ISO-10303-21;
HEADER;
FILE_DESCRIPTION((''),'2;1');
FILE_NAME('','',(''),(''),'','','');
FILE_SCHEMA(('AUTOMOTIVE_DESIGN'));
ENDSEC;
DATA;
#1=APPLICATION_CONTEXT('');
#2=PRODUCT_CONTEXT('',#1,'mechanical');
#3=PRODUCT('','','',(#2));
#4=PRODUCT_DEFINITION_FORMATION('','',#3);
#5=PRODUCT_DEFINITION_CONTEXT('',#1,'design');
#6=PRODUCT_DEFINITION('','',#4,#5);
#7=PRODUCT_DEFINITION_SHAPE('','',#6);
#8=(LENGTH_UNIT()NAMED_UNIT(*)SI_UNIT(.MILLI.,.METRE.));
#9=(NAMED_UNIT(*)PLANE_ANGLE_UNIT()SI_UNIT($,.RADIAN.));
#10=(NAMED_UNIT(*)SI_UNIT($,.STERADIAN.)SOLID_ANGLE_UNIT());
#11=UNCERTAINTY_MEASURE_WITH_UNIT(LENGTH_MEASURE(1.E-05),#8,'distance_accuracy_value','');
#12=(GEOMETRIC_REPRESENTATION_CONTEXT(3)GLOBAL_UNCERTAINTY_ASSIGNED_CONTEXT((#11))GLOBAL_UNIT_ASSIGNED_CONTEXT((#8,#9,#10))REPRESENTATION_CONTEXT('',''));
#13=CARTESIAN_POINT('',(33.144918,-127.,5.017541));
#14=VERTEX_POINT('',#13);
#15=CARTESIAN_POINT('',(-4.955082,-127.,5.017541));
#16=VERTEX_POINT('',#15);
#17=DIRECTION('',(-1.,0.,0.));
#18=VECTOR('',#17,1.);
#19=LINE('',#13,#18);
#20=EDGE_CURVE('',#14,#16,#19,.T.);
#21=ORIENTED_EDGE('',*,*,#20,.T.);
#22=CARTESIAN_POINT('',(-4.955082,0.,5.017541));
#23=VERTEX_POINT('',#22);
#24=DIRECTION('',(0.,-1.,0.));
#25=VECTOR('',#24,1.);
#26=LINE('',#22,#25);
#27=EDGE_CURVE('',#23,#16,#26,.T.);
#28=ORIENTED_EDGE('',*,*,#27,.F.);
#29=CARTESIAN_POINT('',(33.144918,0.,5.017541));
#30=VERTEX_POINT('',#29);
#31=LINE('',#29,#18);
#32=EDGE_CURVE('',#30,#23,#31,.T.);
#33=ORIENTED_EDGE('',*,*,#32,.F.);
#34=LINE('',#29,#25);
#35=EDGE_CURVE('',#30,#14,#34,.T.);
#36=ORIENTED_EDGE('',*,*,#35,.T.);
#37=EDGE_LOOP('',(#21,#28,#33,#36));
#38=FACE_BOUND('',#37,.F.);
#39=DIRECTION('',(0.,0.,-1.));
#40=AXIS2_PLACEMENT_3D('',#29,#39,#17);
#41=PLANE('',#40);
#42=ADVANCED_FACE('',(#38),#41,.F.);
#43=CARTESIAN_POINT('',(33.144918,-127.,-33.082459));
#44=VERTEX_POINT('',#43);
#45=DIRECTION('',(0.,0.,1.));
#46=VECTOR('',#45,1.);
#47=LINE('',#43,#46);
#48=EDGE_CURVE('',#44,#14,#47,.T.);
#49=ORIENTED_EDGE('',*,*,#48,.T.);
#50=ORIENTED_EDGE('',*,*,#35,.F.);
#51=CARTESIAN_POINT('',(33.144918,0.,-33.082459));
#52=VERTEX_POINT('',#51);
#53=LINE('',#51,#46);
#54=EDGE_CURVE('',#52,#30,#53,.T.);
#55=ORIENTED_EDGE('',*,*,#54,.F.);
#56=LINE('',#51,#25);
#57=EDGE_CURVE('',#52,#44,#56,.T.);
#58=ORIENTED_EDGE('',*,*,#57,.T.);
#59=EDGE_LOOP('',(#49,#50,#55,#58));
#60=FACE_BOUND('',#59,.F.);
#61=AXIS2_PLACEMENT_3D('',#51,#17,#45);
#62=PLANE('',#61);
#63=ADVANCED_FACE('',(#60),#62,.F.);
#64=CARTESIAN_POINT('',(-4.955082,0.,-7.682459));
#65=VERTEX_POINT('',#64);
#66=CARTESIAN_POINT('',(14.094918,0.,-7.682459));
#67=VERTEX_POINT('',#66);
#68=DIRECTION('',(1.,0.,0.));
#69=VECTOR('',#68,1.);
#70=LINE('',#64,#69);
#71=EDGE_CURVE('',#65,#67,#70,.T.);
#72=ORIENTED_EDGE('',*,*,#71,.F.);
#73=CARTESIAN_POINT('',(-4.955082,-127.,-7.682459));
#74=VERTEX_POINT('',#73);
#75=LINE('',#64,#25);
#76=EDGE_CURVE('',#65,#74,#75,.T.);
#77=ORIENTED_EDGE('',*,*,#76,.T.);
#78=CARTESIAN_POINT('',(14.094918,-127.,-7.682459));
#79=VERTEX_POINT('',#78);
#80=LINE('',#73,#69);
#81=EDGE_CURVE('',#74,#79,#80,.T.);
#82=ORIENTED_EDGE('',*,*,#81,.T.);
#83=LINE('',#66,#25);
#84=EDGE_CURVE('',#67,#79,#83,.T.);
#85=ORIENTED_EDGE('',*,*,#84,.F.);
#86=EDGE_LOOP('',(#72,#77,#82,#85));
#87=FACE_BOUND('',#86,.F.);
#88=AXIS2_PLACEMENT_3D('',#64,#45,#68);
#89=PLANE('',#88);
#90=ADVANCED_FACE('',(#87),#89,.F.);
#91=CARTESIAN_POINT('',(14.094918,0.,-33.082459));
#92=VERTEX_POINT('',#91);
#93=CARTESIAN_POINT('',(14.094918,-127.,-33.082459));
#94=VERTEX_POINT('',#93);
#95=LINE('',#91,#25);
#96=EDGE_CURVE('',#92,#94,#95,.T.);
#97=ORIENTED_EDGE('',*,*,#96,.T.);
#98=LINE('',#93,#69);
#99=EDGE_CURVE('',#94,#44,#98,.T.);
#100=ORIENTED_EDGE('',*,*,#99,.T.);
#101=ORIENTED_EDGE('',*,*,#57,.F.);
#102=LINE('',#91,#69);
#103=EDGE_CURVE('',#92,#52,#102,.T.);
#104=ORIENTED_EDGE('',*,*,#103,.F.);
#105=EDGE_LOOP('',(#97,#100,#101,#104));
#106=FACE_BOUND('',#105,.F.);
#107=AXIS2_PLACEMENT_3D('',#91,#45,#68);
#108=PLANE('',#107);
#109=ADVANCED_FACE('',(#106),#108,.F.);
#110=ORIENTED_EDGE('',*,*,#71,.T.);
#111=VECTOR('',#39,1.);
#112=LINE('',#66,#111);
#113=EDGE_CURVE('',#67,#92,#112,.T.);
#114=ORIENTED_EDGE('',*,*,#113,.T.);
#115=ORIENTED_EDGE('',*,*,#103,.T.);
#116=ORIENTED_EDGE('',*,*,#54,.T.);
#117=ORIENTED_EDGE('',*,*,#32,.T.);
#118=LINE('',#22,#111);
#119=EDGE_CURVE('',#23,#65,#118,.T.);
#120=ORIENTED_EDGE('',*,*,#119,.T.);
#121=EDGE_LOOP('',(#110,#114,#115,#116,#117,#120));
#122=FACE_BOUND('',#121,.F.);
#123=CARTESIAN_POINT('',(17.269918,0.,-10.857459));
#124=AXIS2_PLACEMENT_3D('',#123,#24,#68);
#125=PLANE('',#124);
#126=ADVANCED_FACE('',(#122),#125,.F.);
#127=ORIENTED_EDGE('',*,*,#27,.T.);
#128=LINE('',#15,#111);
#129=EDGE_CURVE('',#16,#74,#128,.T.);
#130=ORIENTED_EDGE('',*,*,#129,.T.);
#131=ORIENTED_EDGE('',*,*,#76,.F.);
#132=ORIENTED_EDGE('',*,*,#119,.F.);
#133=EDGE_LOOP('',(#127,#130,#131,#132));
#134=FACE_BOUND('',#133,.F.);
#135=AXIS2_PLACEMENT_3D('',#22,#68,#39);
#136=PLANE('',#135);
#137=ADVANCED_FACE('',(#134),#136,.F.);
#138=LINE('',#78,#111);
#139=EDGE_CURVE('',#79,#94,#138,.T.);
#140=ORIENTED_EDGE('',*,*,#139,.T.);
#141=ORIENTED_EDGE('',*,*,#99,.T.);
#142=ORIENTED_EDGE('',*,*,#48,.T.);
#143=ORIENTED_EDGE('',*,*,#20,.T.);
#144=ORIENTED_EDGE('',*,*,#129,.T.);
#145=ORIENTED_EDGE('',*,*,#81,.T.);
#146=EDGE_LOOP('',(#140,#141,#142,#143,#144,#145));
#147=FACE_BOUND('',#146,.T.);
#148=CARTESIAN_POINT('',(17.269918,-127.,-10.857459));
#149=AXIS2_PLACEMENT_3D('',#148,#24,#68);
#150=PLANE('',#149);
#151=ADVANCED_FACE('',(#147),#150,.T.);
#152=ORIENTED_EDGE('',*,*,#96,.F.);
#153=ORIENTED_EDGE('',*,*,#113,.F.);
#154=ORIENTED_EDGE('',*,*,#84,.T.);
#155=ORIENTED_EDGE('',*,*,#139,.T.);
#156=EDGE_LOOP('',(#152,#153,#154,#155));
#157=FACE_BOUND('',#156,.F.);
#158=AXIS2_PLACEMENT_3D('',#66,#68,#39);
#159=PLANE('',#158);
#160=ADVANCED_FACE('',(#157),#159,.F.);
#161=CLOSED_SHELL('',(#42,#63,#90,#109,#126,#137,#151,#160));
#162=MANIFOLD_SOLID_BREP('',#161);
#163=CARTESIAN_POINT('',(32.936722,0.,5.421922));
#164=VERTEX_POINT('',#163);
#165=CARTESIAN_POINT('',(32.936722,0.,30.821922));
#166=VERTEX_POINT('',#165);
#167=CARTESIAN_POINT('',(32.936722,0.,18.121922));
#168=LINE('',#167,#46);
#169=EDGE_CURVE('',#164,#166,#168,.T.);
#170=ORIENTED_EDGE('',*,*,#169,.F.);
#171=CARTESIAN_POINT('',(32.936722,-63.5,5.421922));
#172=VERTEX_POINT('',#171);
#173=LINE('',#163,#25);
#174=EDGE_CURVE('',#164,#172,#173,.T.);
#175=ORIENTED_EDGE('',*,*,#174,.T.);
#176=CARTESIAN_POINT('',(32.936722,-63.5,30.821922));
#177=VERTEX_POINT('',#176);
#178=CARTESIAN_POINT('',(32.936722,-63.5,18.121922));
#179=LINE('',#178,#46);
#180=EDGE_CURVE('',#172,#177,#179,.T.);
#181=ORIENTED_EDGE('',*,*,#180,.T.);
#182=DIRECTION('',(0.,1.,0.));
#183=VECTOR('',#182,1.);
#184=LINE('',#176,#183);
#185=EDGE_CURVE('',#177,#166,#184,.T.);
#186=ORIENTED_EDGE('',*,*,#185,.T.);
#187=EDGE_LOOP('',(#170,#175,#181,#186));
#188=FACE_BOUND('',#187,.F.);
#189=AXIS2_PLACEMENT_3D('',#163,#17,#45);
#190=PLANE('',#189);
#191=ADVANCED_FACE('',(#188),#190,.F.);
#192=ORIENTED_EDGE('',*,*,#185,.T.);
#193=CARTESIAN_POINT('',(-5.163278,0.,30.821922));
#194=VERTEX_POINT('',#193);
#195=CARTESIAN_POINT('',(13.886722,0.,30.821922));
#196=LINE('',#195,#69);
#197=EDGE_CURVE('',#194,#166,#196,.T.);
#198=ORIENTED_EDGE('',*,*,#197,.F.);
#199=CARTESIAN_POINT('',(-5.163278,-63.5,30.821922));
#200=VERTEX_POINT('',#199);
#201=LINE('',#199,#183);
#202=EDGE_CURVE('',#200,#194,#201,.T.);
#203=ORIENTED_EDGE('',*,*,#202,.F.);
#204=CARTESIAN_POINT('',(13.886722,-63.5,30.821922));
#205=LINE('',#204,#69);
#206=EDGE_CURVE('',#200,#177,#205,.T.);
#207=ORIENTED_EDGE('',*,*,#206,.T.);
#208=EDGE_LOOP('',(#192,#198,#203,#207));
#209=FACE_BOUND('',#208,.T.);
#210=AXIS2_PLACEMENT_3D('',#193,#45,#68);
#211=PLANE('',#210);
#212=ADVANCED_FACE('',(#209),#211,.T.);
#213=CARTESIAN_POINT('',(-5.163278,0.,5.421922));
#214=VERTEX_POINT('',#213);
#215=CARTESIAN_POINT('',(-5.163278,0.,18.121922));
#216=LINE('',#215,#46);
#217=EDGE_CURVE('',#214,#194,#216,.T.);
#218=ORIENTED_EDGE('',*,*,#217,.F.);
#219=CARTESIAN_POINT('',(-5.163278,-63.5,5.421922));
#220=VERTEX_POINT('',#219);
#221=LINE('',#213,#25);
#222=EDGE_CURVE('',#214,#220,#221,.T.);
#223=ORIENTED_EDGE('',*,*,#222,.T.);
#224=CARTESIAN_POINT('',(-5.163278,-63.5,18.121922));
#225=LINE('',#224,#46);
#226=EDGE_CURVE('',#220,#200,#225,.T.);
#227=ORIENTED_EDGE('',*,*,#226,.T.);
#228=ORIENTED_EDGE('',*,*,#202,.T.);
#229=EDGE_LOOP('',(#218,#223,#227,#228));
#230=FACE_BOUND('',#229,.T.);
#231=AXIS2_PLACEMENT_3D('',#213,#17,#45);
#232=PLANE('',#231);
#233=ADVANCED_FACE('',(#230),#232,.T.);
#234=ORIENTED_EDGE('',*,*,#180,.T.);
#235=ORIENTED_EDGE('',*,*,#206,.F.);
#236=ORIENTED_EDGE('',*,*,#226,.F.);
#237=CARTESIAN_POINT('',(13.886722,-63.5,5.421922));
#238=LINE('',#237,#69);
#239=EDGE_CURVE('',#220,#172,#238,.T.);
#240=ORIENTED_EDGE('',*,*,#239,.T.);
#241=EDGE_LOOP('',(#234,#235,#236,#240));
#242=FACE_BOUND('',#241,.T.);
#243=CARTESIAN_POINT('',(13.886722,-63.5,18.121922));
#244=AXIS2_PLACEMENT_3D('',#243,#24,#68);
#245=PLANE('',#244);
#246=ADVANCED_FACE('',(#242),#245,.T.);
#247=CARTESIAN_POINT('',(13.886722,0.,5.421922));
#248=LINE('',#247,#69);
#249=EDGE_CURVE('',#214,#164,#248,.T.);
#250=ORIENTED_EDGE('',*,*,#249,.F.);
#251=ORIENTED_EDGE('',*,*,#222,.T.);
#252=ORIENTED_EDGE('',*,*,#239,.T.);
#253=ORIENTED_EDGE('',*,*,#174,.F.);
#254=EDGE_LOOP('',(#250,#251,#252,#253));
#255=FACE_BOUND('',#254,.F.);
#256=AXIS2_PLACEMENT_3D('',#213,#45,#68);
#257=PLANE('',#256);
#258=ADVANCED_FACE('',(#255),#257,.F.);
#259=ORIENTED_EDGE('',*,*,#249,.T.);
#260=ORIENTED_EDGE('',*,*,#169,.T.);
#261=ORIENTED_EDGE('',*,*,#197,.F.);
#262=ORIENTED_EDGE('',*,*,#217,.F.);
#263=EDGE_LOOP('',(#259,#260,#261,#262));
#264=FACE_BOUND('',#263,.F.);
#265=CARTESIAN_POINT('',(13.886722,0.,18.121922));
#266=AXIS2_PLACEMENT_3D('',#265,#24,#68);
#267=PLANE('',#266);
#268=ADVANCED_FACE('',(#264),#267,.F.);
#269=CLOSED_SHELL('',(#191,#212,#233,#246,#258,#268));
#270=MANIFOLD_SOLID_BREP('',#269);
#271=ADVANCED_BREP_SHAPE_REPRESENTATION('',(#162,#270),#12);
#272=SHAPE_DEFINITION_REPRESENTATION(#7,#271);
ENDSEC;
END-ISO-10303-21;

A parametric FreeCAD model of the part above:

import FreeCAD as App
import Part
import Sketcher
Q = App.Units.Quantity


def add_polygon(sketch, points):
    """Adds a closed chain of lines whose ends are joined by coincident constraints."""
    first, n = sketch.GeometryCount, len(points)
    for a, b in zip(points, points[1:] + points[:1]):
        sketch.addGeometry(Part.LineSegment(App.Vector(*a, 0), App.Vector(*b, 0)), False)
    for i in range(n):
        sketch.addConstraint(Sketcher.Constraint("Coincident", first + i, 2, first + (i + 1) % n, 1))

doc = App.newDocument("Part")
body = doc.addObject("PartDesign::Body", "Body")

sketch1 = doc.addObject("Sketcher::SketchObject", "Sketch")
body.addObject(sketch1)
sketch1.AttachmentSupport = (doc.XZ_Plane, [""])
sketch1.MapMode = "FlatFace"
add_polygon(sketch1, [(14.094918, -7.682459), (14.094918, -33.082459), (33.144918, -33.082459), (33.144918, 5.017541), (-4.955082, 5.017541), (-4.955082, -7.682459)])
sketch1.addConstraint(Sketcher.Constraint("Vertical", 0))
sketch1.addConstraint(Sketcher.Constraint("Horizontal", 1))
sketch1.addConstraint(Sketcher.Constraint("Vertical", 2))
sketch1.addConstraint(Sketcher.Constraint("Horizontal", 3))
sketch1.addConstraint(Sketcher.Constraint("Vertical", 4))
sketch1.addConstraint(Sketcher.Constraint("Horizontal", 5))
sketch1.addConstraint(Sketcher.Constraint("Equal", 1, 5))
sketch1.addConstraint(Sketcher.Constraint("Equal", 3, 2))
sketch1.addConstraint(Sketcher.Constraint("DistanceY", 0, 2, 0, 1, Q("1 in")))
sketch1.addConstraint(Sketcher.Constraint("DistanceX", 3, 2, 3, 1, Q("1.5 in")))
sketch1.addConstraint(Sketcher.Constraint("DistanceY", 0, 2, -1, 1, Q("33.082459 mm")))
sketch1.addConstraint(Sketcher.Constraint("DistanceX", -1, 1, 0, 2, Q("14.094918 mm")))
pad1 = doc.addObject("PartDesign::Pad", "Pad")
body.addObject(pad1)
pad1.Profile = sketch1
pad1.Length = Q("5 in")
body2 = doc.addObject("PartDesign::Body", "Body001")

sketch2 = doc.addObject("Sketcher::SketchObject", "Sketch001")
body2.addObject(sketch2)
sketch2.AttachmentSupport = (doc.getObject("XZ_Plane001"), [""])
sketch2.MapMode = "FlatFace"
add_polygon(sketch2, [(-5.163278, 30.821922), (-5.163278, 5.421922), (32.936722, 5.421922), (32.936722, 30.821922)])
sketch2.addConstraint(Sketcher.Constraint("Vertical", 0))
sketch2.addConstraint(Sketcher.Constraint("Horizontal", 1))
sketch2.addConstraint(Sketcher.Constraint("Vertical", 2))
sketch2.addConstraint(Sketcher.Constraint("Horizontal", 3))
sketch2.addConstraint(Sketcher.Constraint("DistanceY", 0, 2, 0, 1, Q("1 in")))
sketch2.addConstraint(Sketcher.Constraint("DistanceX", 1, 1, 1, 2, Q("1.5 in")))
sketch2.addConstraint(Sketcher.Constraint("DistanceX", 0, 2, -1, 1, Q("5.163278 mm")))
sketch2.addConstraint(Sketcher.Constraint("DistanceY", -1, 1, 0, 2, Q("5.421922 mm")))
pad2 = doc.addObject("PartDesign::Pad", "Pad001")
body2.addObject(pad2)
pad2.Profile = sketch2
pad2.Length = Q("1.31 in")

sketch3 = doc.addObject("Sketcher::SketchObject", "Sketch002")
body2.addObject(sketch3)
sketch3.AttachmentSupport = (doc.getObject("XZ_Plane001"), [""])
sketch3.MapMode = "FlatFace"
add_polygon(sketch3, [(-5.163278, 30.821922), (-5.163278, 5.421922), (32.936722, 5.421922), (32.936722, 30.821922)])
sketch3.addConstraint(Sketcher.Constraint("Vertical", 0))
sketch3.addConstraint(Sketcher.Constraint("Horizontal", 1))
sketch3.addConstraint(Sketcher.Constraint("Vertical", 2))
sketch3.addConstraint(Sketcher.Constraint("Horizontal", 3))
sketch3.addConstraint(Sketcher.Constraint("DistanceY", 0, 2, 0, 1, Q("1 in")))
sketch3.addConstraint(Sketcher.Constraint("DistanceX", 1, 1, 1, 2, Q("1.5 in")))
sketch3.addConstraint(Sketcher.Constraint("DistanceX", 0, 2, -1, 1, Q("5.163278 mm")))
sketch3.addConstraint(Sketcher.Constraint("DistanceY", -1, 1, 0, 2, Q("5.421922 mm")))
pad3 = doc.addObject("PartDesign::Pad", "Pad002")
body2.addObject(pad3)
pad3.Profile = sketch3
pad3.Length = Q("2.5 in")

doc.recompute()
